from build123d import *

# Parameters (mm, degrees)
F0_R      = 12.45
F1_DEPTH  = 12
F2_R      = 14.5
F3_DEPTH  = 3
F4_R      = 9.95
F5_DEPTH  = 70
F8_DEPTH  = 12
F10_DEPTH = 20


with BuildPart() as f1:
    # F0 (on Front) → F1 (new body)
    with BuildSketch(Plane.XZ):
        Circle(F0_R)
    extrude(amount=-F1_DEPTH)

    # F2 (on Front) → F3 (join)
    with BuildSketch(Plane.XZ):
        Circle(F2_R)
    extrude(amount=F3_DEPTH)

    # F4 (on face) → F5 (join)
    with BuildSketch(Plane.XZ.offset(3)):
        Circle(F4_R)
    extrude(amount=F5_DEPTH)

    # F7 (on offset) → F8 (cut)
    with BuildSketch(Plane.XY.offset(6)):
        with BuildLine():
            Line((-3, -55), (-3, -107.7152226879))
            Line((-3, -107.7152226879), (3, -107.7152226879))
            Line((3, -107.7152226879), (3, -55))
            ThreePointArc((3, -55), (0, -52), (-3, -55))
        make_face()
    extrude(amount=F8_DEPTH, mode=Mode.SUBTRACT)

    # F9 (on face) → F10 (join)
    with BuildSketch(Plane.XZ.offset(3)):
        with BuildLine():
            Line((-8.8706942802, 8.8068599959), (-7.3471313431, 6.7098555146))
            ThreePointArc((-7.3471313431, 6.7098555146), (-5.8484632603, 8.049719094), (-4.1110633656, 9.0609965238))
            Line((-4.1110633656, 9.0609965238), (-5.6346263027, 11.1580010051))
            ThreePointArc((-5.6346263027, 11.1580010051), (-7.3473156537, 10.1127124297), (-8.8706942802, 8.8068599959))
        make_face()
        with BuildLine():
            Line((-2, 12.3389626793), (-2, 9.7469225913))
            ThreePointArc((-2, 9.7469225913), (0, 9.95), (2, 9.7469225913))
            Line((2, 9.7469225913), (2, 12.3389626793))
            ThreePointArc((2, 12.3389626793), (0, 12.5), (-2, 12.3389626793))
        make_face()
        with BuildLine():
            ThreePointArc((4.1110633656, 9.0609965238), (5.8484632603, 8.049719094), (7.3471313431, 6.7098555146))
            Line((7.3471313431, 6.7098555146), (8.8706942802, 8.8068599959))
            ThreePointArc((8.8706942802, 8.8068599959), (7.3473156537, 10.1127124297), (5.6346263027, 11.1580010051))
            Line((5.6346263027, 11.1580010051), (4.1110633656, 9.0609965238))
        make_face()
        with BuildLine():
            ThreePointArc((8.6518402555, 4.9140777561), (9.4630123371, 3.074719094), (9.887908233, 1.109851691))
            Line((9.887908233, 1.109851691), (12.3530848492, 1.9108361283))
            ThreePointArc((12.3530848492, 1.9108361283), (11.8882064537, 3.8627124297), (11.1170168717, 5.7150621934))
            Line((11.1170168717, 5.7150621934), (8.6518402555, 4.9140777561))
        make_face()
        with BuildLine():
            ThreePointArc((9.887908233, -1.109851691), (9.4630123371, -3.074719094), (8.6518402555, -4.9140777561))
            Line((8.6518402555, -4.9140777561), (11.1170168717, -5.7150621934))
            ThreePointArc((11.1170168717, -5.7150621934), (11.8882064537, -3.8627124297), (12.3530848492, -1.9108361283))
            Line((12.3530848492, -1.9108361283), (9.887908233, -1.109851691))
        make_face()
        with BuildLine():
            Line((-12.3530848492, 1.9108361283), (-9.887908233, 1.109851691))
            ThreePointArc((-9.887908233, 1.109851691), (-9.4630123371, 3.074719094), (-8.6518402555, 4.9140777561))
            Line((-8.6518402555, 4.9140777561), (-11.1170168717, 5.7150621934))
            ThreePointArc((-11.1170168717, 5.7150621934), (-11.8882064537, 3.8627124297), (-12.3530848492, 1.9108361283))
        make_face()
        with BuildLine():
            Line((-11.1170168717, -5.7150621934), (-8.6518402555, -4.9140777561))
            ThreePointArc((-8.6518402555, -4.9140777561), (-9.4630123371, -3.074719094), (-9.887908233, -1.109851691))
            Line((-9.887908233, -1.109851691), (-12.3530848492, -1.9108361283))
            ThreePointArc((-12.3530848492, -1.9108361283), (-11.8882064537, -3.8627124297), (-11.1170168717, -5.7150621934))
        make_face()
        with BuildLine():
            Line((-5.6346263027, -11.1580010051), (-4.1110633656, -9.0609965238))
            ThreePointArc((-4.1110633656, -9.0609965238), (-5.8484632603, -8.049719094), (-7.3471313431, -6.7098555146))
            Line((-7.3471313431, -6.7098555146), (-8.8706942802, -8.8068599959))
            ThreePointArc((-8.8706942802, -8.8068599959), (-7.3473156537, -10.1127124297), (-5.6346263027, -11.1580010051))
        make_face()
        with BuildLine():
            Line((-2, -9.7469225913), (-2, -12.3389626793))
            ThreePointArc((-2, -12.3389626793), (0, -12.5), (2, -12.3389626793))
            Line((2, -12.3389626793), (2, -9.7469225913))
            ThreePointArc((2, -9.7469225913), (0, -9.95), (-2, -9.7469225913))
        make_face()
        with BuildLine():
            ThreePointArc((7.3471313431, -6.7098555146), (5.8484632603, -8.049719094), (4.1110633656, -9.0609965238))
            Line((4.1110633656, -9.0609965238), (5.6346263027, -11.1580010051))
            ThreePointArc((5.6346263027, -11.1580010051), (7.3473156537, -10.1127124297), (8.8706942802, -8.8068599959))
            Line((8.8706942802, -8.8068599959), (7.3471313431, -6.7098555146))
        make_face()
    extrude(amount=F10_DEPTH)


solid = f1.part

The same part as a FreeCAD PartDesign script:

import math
import FreeCAD as App
import Part
import Sketcher
Q = App.Units.Quantity

doc = App.newDocument("Part")
params = doc.addObject("Spreadsheet::Sheet", "Params")
for row, (alias, value) in enumerate([
    ("sketch1_diameter", "24.9 mm"),
    ("pad1_length", "12 mm"),
    ("sketch2_diameter", "29 mm"),
    ("pad2_length", "3 mm"),
    ("sketch3_diameter", "19.9 mm"),
    ("pad3_length", "70 mm"),
    ("sketch4_radius", "3 mm"),
    ("pocket1_length", "12 mm"),
    ("sketch5_radius", "12.5 mm"),
    ("sketch5_radius2", "9.95 mm"),
    ("pad4_length", "20 mm"),
], start=1):
    params.set(f"A{row}", alias)
    params.set(f"B{row}", "=" + value)
    params.setAlias(f"B{row}", alias)

body = doc.addObject("PartDesign::Body", "Body")

# Sketch on XZ plane
sketch1 = body.newObject("Sketcher::SketchObject", "Sketch")
sketch1.AttachmentSupport = (doc.getObject("XZ_Plane"), [""])
sketch1.MapMode = "FlatFace"
sketch1.addGeometry(Part.Circle(App.Vector(0, 0, 0), App.Vector(0, 0, 1), 12), False)
sketch1.addConstraint(Sketcher.Constraint("Coincident", 0, 3, -1, 1))
sketch1.addConstraint(Sketcher.Constraint("Diameter", 0, Q("24.9 mm")))
sketch1.setExpression("Constraints[1]", "Params.sketch1_diameter")
pad1 = body.newObject("PartDesign::Pad", "Pad")
pad1.Profile = sketch1
pad1.setExpression("Length", "Params.pad1_length")
pad1.Reversed = True

# Sketch on XZ plane
sketch2 = body.newObject("Sketcher::SketchObject", "Sketch001")
sketch2.AttachmentSupport = (doc.getObject("XZ_Plane"), [""])
sketch2.MapMode = "FlatFace"
sketch2.addGeometry(Part.Circle(App.Vector(0, 0, 0), App.Vector(0, 0, 1), 14), False)
sketch2.addConstraint(Sketcher.Constraint("Coincident", 0, 3, -1, 1))
sketch2.addConstraint(Sketcher.Constraint("Diameter", 0, Q("29 mm")))
sketch2.setExpression("Constraints[1]", "Params.sketch2_diameter")
pad2 = body.newObject("PartDesign::Pad", "Pad001")
pad2.Profile = sketch2
pad2.setExpression("Length", "Params.pad2_length")

# Sketch on XZ plane
sketch3 = body.newObject("Sketcher::SketchObject", "Sketch002")
sketch3.AttachmentSupport = (doc.getObject("XZ_Plane"), [""])
sketch3.MapMode = "FlatFace"
sketch3.AttachmentOffset = App.Placement(App.Vector(0, 0, 3), App.Rotation())
sketch3.addGeometry(Part.Circle(App.Vector(0, 0, 0), App.Vector(0, 0, 1), 10), False)
sketch3.addConstraint(Sketcher.Constraint("Coincident", 0, 3, -1, 1))
sketch3.addConstraint(Sketcher.Constraint("Diameter", 0, Q("19.9 mm")))
sketch3.setExpression("Constraints[1]", "Params.sketch3_diameter")
pad3 = body.newObject("PartDesign::Pad", "Pad002")
pad3.Profile = sketch3
pad3.setExpression("Length", "Params.pad3_length")

# Sketch on XY plane
sketch4 = body.newObject("Sketcher::SketchObject", "Sketch003")
sketch4.AttachmentSupport = (doc.getObject("XY_Plane"), [""])
sketch4.MapMode = "FlatFace"
sketch4.AttachmentOffset = App.Placement(App.Vector(0, 0, 6), App.Rotation())
sketch4.addGeometry(Part.LineSegment(App.Vector(-3, -55, 0), App.Vector(-3, -107.7, 0)), False)
sketch4.addGeometry(Part.LineSegment(App.Vector(-3, -107.7, 0), App.Vector(3, -107.7, 0)), False)
sketch4.addGeometry(Part.LineSegment(App.Vector(3, -107.7, 0), App.Vector(3, -55, 0)), False)
sketch4.addGeometry(Part.ArcOfCircle(Part.Circle(App.Vector(0, -55, 0), App.Vector(0, 0, 1), 3), math.radians(0), math.radians(180)), False)
sketch4.addConstraint(Sketcher.Constraint("Coincident", 0, 2, 1, 1))
sketch4.addConstraint(Sketcher.Constraint("Coincident", 1, 2, 2, 1))
sketch4.addConstraint(Sketcher.Constraint("Tangent", 2, 2, 3, 1))
sketch4.addConstraint(Sketcher.Constraint("Tangent", 3, 2, 0, 1))
sketch4.addConstraint(Sketcher.Constraint("Vertical", 0))
sketch4.addConstraint(Sketcher.Constraint("Horizontal", 1))
sketch4.addConstraint(Sketcher.Constraint("Vertical", 2))
sketch4.addConstraint(Sketcher.Constraint("PointOnObject", 3, 3, -2))
sketch4.addConstraint(Sketcher.Constraint("Radius", 3, Q("3 mm")))
sketch4.addConstraint(Sketcher.Constraint("DistanceY", 3, 3, -1, 1, Q("55 mm")))
sketch4.addConstraint(Sketcher.Constraint("DistanceY", 0, 2, 0, 1, Q("52.715223 mm")))
sketch4.setExpression("Constraints[8]", "Params.sketch4_radius")
pocket1 = body.newObject("PartDesign::Pocket", "Pocket")
pocket1.Profile = sketch4
pocket1.setExpression("Length", "Params.pocket1_length")
pocket1.Reversed = True

# Sketch on XZ plane
sketch5 = body.newObject("Sketcher::SketchObject", "Sketch004")
sketch5.AttachmentSupport = (doc.getObject("XZ_Plane"), [""])
sketch5.MapMode = "FlatFace"
sketch5.AttachmentOffset = App.Placement(App.Vector(0, 0, 3), App.Rotation())
sketch5.addGeometry(Part.LineSegment(App.Vector(-8.9, 8.8, 0), App.Vector(-7.3, 6.7, 0)), False)
sketch5.addGeometry(Part.ArcOfCircle(Part.Circle(App.Vector(0, 0, 0), App.Vector(0, 0, 1), 10), math.radians(114), math.radians(138)), False)
sketch5.addGeometry(Part.LineSegment(App.Vector(-4.1, 9.1, 0), App.Vector(-5.6, 11.2, 0)), False)
sketch5.addGeometry(Part.ArcOfCircle(Part.Circle(App.Vector(0, 0, 0), App.Vector(0, 0, 1), 12.5), math.radians(116.79), math.radians(135.21)), False)
sketch5.addGeometry(Part.LineSegment(App.Vector(-2, 12.3, 0), App.Vector(-2, 9.7, 0)), False)
sketch5.addGeometry(Part.ArcOfCircle(Part.Circle(App.Vector(0, 0, 0), App.Vector(0, 0, 1), 10), math.radians(78), math.radians(102)), False)
sketch5.addGeometry(Part.LineSegment(App.Vector(2, 9.7, 0), App.Vector(2, 12.3, 0)), False)
sketch5.addGeometry(Part.ArcOfCircle(Part.Circle(App.Vector(0, 0, 0), App.Vector(0, 0, 1), 12.5), math.radians(80.79), math.radians(99.21)), False)
sketch5.addGeometry(Part.ArcOfCircle(Part.Circle(App.Vector(0, 0, 0), App.Vector(0, 0, 1), 10), math.radians(42), math.radians(66)), False)
sketch5.addGeometry(Part.LineSegment(App.Vector(7.3, 6.7, 0), App.Vector(8.9, 8.8, 0)), False)
sketch5.addGeometry(Part.ArcOfCircle(Part.Circle(App.Vector(0, 0, 0), App.Vector(0, 0, 1), 12.5), math.radians(44.79), math.radians(63.21)), False)
sketch5.addGeometry(Part.LineSegment(App.Vector(5.6, 11.2, 0), App.Vector(4.1, 9.1, 0)), False)
sketch5.addGeometry(Part.ArcOfCircle(Part.Circle(App.Vector(0, 0, 0), App.Vector(0, 0, 1), 10), math.radians(6), math.radians(30)), False)
sketch5.addGeometry(Part.LineSegment(App.Vector(9.9, 1.1, 0), App.Vector(12.4, 1.9, 0)), False)
sketch5.addGeometry(Part.ArcOfCircle(Part.Circle(App.Vector(0, 0, 0), App.Vector(0, 0, 1), 12.5), math.radians(8.79), math.radians(27.21)), False)
sketch5.addGeometry(Part.LineSegment(App.Vector(11.1, 5.7, 0), App.Vector(8.7, 4.9, 0)), False)
sketch5.addGeometry(Part.ArcOfCircle(Part.Circle(App.Vector(0, 0, 0), App.Vector(0, 0, 1), 10), math.radians(-30), math.radians(-6)), False)
sketch5.addGeometry(Part.LineSegment(App.Vector(8.7, -4.9, 0), App.Vector(11.1, -5.7, 0)), False)
sketch5.addGeometry(Part.ArcOfCircle(Part.Circle(App.Vector(0, 0, 0), App.Vector(0, 0, 1), 12.5), math.radians(-27.21), math.radians(-8.79)), False)
sketch5.addGeometry(Part.LineSegment(App.Vector(12.4, -1.9, 0), App.Vector(9.9, -1.1, 0)), False)
sketch5.addGeometry(Part.LineSegment(App.Vector(-12.4, 1.9, 0), App.Vector(-9.9, 1.1, 0)), False)
sketch5.addGeometry(Part.ArcOfCircle(Part.Circle(App.Vector(0, 0, 0), App.Vector(0, 0, 1), 10), math.radians(150), math.radians(174)), False)
sketch5.addGeometry(Part.LineSegment(App.Vector(-8.7, 4.9, 0), App.Vector(-11.1, 5.7, 0)), False)
sketch5.addGeometry(Part.ArcOfCircle(Part.Circle(App.Vector(0, 0, 0), App.Vector(0, 0, 1), 12.5), math.radians(152.79), math.radians(171.21)), False)
sketch5.addGeometry(Part.LineSegment(App.Vector(-11.1, -5.7, 0), App.Vector(-8.7, -4.9, 0)), False)
sketch5.addGeometry(Part.ArcOfCircle(Part.Circle(App.Vector(0, 0, 0), App.Vector(0, 0, 1), 10), math.radians(-174), math.radians(-150)), False)
sketch5.addGeometry(Part.LineSegment(App.Vector(-9.9, -1.1, 0), App.Vector(-12.4, -1.9, 0)), False)
sketch5.addGeometry(Part.ArcOfCircle(Part.Circle(App.Vector(0, 0, 0), App.Vector(0, 0, 1), 12.5), math.radians(-171.21), math.radians(-152.79)), False)
sketch5.addGeometry(Part.LineSegment(App.Vector(-5.6, -11.2, 0), App.Vector(-4.1, -9.1, 0)), False)
sketch5.addGeometry(Part.ArcOfCircle(Part.Circle(App.Vector(0, 0, 0), App.Vector(0, 0, 1), 10), math.radians(-138), math.radians(-114)), False)
sketch5.addGeometry(Part.LineSegment(App.Vector(-7.3, -6.7, 0), App.Vector(-8.9, -8.8, 0)), False)
sketch5.addGeometry(Part.ArcOfCircle(Part.Circle(App.Vector(0, 0, 0), App.Vector(0, 0, 1), 12.5), math.radians(-135.21), math.radians(-116.79)), False)
sketch5.addGeometry(Part.LineSegment(App.Vector(-2, -9.7, 0), App.Vector(-2, -12.3, 0)), False)
sketch5.addGeometry(Part.ArcOfCircle(Part.Circle(App.Vector(0, 0, 0), App.Vector(0, 0, 1), 12.5), math.radians(-99.21), math.radians(-80.79)), False)
sketch5.addGeometry(Part.LineSegment(App.Vector(2, -12.3, 0), App.Vector(2, -9.7, 0)), False)
sketch5.addGeometry(Part.ArcOfCircle(Part.Circle(App.Vector(0, 0, 0), App.Vector(0, 0, 1), 10), math.radians(-102), math.radians(-78)), False)
sketch5.addGeometry(Part.ArcOfCircle(Part.Circle(App.Vector(0, 0, 0), App.Vector(0, 0, 1), 10), math.radians(-66), math.radians(-42)), False)
sketch5.addGeometry(Part.LineSegment(App.Vector(4.1, -9.1, 0), App.Vector(5.6, -11.2, 0)), False)
sketch5.addGeometry(Part.ArcOfCircle(Part.Circle(App.Vector(0, 0, 0), App.Vector(0, 0, 1), 12.5), math.radians(-63.21), math.radians(-44.79)), False)
sketch5.addGeometry(Part.LineSegment(App.Vector(8.9, -8.8, 0), App.Vector(7.3, -6.7, 0)), False)
sketch5.addConstraint(Sketcher.Constraint("Coincident", 0, 2, 1, 2))
sketch5.addConstraint(Sketcher.Constraint("Coincident", 1, 1, 2, 1))
sketch5.addConstraint(Sketcher.Constraint("Coincident", 2, 2, 3, 1))
sketch5.addConstraint(Sketcher.Constraint("Coincident", 3, 2, 0, 1))
sketch5.addConstraint(Sketcher.Constraint("Coincident", 4, 2, 5, 2))
sketch5.addConstraint(Sketcher.Constraint("Coincident", 5, 1, 6, 1))
sketch5.addConstraint(Sketcher.Constraint("Coincident", 6, 2, 7, 1))
sketch5.addConstraint(Sketcher.Constraint("Coincident", 7, 2, 4, 1))
sketch5.addConstraint(Sketcher.Constraint("Coincident", 8, 1, 9, 1))
sketch5.addConstraint(Sketcher.Constraint("Coincident", 9, 2, 10, 1))
sketch5.addConstraint(Sketcher.Constraint("Coincident", 10, 2, 11, 1))
sketch5.addConstraint(Sketcher.Constraint("Coincident", 11, 2, 8, 2))
sketch5.addConstraint(Sketcher.Constraint("Coincident", 12, 1, 13, 1))
sketch5.addConstraint(Sketcher.Constraint("Coincident", 13, 2, 14, 1))
sketch5.addConstraint(Sketcher.Constraint("Coincident", 14, 2, 15, 1))
sketch5.addConstraint(Sketcher.Constraint("Coincident", 15, 2, 12, 2))
sketch5.addConstraint(Sketcher.Constraint("Coincident", 16, 1, 17, 1))
sketch5.addConstraint(Sketcher.Constraint("Coincident", 17, 2, 18, 1))
sketch5.addConstraint(Sketcher.Constraint("Coincident", 18, 2, 19, 1))
sketch5.addConstraint(Sketcher.Constraint("Coincident", 19, 2, 16, 2))
sketch5.addConstraint(Sketcher.Constraint("Coincident", 20, 2, 21, 2))
sketch5.addConstraint(Sketcher.Constraint("Coincident", 21, 1, 22, 1))
sketch5.addConstraint(Sketcher.Constraint("Coincident", 22, 2, 23, 1))
sketch5.addConstraint(Sketcher.Constraint("Coincident", 23, 2, 20, 1))
sketch5.addConstraint(Sketcher.Constraint("Coincident", 24, 2, 25, 2))
sketch5.addConstraint(Sketcher.Constraint("Coincident", 25, 1, 26, 1))
sketch5.addConstraint(Sketcher.Constraint("Coincident", 26, 2, 27, 1))
sketch5.addConstraint(Sketcher.Constraint("Coincident", 27, 2, 24, 1))
sketch5.addConstraint(Sketcher.Constraint("Coincident", 28, 2, 29, 2))
sketch5.addConstraint(Sketcher.Constraint("Coincident", 29, 1, 30, 1))
sketch5.addConstraint(Sketcher.Constraint("Coincident", 30, 2, 31, 1))
sketch5.addConstraint(Sketcher.Constraint("Coincident", 31, 2, 28, 1))
sketch5.addConstraint(Sketcher.Constraint("Coincident", 32, 2, 33, 1))
sketch5.addConstraint(Sketcher.Constraint("Coincident", 33, 2, 34, 1))
sketch5.addConstraint(Sketcher.Constraint("Coincident", 34, 2, 35, 2))
sketch5.addConstraint(Sketcher.Constraint("Coincident", 35, 1, 32, 1))
sketch5.addConstraint(Sketcher.Constraint("Coincident", 36, 1, 37, 1))
sketch5.addConstraint(Sketcher.Constraint("Coincident", 37, 2, 38, 1))
sketch5.addConstraint(Sketcher.Constraint("Coincident", 38, 2, 39, 1))
sketch5.addConstraint(Sketcher.Constraint("Coincident", 39, 2, 36, 2))
sketch5.addConstraint(Sketcher.Constraint("Vertical", 4))
sketch5.addConstraint(Sketcher.Constraint("Vertical", 6))
sketch5.addConstraint(Sketcher.Constraint("Vertical", 32))
sketch5.addConstraint(Sketcher.Constraint("Vertical", 34))
sketch5.addConstraint(Sketcher.Constraint("Coincident", 1, 3, -1, 1))
sketch5.addConstraint(Sketcher.Constraint("Coincident", 3, 3, -1, 1))
sketch5.addConstraint(Sketcher.Constraint("Coincident", 5, 3, -1, 1))
sketch5.addConstraint(Sketcher.Constraint("Coincident", 7, 3, -1, 1))
sketch5.addConstraint(Sketcher.Constraint("Coincident", 8, 3, -1, 1))
sketch5.addConstraint(Sketcher.Constraint("Coincident", 10, 3, -1, 1))
sketch5.addConstraint(Sketcher.Constraint("Coincident", 12, 3, -1, 1))
sketch5.addConstraint(Sketcher.Constraint("Coincident", 14, 3, -1, 1))
sketch5.addConstraint(Sketcher.Constraint("Coincident", 16, 3, -1, 1))
sketch5.addConstraint(Sketcher.Constraint("Coincident", 18, 3, -1, 1))
sketch5.addConstraint(Sketcher.Constraint("Coincident", 21, 3, -1, 1))
sketch5.addConstraint(Sketcher.Constraint("Coincident", 23, 3, -1, 1))
sketch5.addConstraint(Sketcher.Constraint("Coincident", 25, 3, -1, 1))
sketch5.addConstraint(Sketcher.Constraint("Coincident", 27, 3, -1, 1))
sketch5.addConstraint(Sketcher.Constraint("Coincident", 29, 3, -1, 1))
sketch5.addConstraint(Sketcher.Constraint("Coincident", 31, 3, -1, 1))
sketch5.addConstraint(Sketcher.Constraint("Coincident", 33, 3, -1, 1))
sketch5.addConstraint(Sketcher.Constraint("Coincident", 35, 3, -1, 1))
sketch5.addConstraint(Sketcher.Constraint("Coincident", 36, 3, -1, 1))
sketch5.addConstraint(Sketcher.Constraint("Coincident", 38, 3, -1, 1))
sketch5.addConstraint(Sketcher.Constraint("Equal", 1, 5))
sketch5.addConstraint(Sketcher.Constraint("Equal", 3, 7))
sketch5.addConstraint(Sketcher.Constraint("Equal", 5, 8))
sketch5.addConstraint(Sketcher.Constraint("Equal", 7, 10))
sketch5.addConstraint(Sketcher.Constraint("Equal", 8, 12))
sketch5.addConstraint(Sketcher.Constraint("Equal", 10, 14))
sketch5.addConstraint(Sketcher.Constraint("Equal", 12, 16))
sketch5.addConstraint(Sketcher.Constraint("Equal", 14, 18))
sketch5.addConstraint(Sketcher.Constraint("Equal", 16, 21))
sketch5.addConstraint(Sketcher.Constraint("Equal", 18, 23))
sketch5.addConstraint(Sketcher.Constraint("Equal", 21, 25))
sketch5.addConstraint(Sketcher.Constraint("Equal", 23, 27))
sketch5.addConstraint(Sketcher.Constraint("Equal", 25, 29))
sketch5.addConstraint(Sketcher.Constraint("Equal", 27, 31))
sketch5.addConstraint(Sketcher.Constraint("Equal", 31, 33))
sketch5.addConstraint(Sketcher.Constraint("Equal", 29, 35))
sketch5.addConstraint(Sketcher.Constraint("Equal", 35, 36))
sketch5.addConstraint(Sketcher.Constraint("Equal", 33, 38))
sketch5.addConstraint(Sketcher.Constraint("Parallel", 0, 2))
sketch5.addConstraint(Sketcher.Constraint("Parallel", 9, 11))
sketch5.addConstraint(Sketcher.Constraint("Parallel", 13, 15))
sketch5.addConstraint(Sketcher.Constraint("Parallel", 17, 19))
sketch5.addConstraint(Sketcher.Constraint("Parallel", 19, 20))
sketch5.addConstraint(Sketcher.Constraint("Parallel", 20, 22))
sketch5.addConstraint(Sketcher.Constraint("Parallel", 15, 24))
sketch5.addConstraint(Sketcher.Constraint("Parallel", 24, 26))
sketch5.addConstraint(Sketcher.Constraint("Parallel", 11, 28))
sketch5.addConstraint(Sketcher.Constraint("Parallel", 28, 30))
sketch5.addConstraint(Sketcher.Constraint("Parallel", 2, 37))
sketch5.addConstraint(Sketcher.Constraint("Parallel", 37, 39))
sketch5.addConstraint(Sketcher.Constraint("Horizontal", 4, 2, 5, 1))
sketch5.addConstraint(Sketcher.Constraint("Horizontal", 0, 2, 8, 1))
sketch5.addConstraint(Sketcher.Constraint("Horizontal", 3, 2, 9, 2))
sketch5.addConstraint(Sketcher.Constraint("Horizontal", 2, 2, 10, 2))
sketch5.addConstraint(Sketcher.Constraint("Horizontal", 12, 1, 20, 2))
sketch5.addConstraint(Sketcher.Constraint("Horizontal", 15, 2, 21, 1))
sketch5.addConstraint(Sketcher.Constraint("Horizontal", 14, 2, 22, 2))
sketch5.addConstraint(Sketcher.Constraint("Horizontal", 16, 1, 24, 2))
sketch5.addConstraint(Sketcher.Constraint("Horizontal", 19, 2, 25, 1))
sketch5.addConstraint(Sketcher.Constraint("Horizontal", 32, 2, 33, 2))
sketch5.addConstraint(Sketcher.Constraint("Horizontal", 28, 2, 36, 1))
sketch5.addConstraint(Sketcher.Constraint("Horizontal", 30, 2, 38, 2))
sketch5.addConstraint(Sketcher.Constraint("Vertical", 15, 2, 16, 1))
sketch5.addConstraint(Sketcher.Constraint("Vertical", 13, 2, 18, 2))
sketch5.addConstraint(Sketcher.Constraint("Vertical", 1, 1, 28, 2))
sketch5.addConstraint(Sketcher.Constraint("Vertical", 0, 2, 29, 1))
sketch5.addConstraint(Sketcher.Constraint("Vertical", 7, 2, 32, 2))
sketch5.addConstraint(Sketcher.Constraint("Equal", 0, 2))
sketch5.addConstraint(Sketcher.Constraint("Equal", 11, 13))
sketch5.addConstraint(Sketcher.Constraint("Equal", 13, 15))
sketch5.addConstraint(Sketcher.Constraint("Radius", 3, Q("12.5 mm")))
sketch5.addConstraint(Sketcher.Constraint("Angle", 0, Q("-54 deg")))
sketch5.addConstraint(Sketcher.Constraint("Angle", 13, Q("18 deg")))
sketch5.addConstraint(Sketcher.Constraint("Radius", 1, Q("9.95 mm")))
sketch5.addConstraint(Sketcher.Constraint("DistanceX", 4, 2, -1, 1, Q("2 mm")))
sketch5.addConstraint(Sketcher.Constraint("DistanceY", -1, 1, 2, 2, Q("11.158001 mm")))
sketch5.setExpression("Constraints[114]", "Params.sketch5_radius")
sketch5.setExpression("Constraints[117]", "Params.sketch5_radius2")
pad4 = body.newObject("PartDesign::Pad", "Pad003")
pad4.Profile = sketch5
pad4.setExpression("Length", "Params.pad4_length")

doc.recompute()
